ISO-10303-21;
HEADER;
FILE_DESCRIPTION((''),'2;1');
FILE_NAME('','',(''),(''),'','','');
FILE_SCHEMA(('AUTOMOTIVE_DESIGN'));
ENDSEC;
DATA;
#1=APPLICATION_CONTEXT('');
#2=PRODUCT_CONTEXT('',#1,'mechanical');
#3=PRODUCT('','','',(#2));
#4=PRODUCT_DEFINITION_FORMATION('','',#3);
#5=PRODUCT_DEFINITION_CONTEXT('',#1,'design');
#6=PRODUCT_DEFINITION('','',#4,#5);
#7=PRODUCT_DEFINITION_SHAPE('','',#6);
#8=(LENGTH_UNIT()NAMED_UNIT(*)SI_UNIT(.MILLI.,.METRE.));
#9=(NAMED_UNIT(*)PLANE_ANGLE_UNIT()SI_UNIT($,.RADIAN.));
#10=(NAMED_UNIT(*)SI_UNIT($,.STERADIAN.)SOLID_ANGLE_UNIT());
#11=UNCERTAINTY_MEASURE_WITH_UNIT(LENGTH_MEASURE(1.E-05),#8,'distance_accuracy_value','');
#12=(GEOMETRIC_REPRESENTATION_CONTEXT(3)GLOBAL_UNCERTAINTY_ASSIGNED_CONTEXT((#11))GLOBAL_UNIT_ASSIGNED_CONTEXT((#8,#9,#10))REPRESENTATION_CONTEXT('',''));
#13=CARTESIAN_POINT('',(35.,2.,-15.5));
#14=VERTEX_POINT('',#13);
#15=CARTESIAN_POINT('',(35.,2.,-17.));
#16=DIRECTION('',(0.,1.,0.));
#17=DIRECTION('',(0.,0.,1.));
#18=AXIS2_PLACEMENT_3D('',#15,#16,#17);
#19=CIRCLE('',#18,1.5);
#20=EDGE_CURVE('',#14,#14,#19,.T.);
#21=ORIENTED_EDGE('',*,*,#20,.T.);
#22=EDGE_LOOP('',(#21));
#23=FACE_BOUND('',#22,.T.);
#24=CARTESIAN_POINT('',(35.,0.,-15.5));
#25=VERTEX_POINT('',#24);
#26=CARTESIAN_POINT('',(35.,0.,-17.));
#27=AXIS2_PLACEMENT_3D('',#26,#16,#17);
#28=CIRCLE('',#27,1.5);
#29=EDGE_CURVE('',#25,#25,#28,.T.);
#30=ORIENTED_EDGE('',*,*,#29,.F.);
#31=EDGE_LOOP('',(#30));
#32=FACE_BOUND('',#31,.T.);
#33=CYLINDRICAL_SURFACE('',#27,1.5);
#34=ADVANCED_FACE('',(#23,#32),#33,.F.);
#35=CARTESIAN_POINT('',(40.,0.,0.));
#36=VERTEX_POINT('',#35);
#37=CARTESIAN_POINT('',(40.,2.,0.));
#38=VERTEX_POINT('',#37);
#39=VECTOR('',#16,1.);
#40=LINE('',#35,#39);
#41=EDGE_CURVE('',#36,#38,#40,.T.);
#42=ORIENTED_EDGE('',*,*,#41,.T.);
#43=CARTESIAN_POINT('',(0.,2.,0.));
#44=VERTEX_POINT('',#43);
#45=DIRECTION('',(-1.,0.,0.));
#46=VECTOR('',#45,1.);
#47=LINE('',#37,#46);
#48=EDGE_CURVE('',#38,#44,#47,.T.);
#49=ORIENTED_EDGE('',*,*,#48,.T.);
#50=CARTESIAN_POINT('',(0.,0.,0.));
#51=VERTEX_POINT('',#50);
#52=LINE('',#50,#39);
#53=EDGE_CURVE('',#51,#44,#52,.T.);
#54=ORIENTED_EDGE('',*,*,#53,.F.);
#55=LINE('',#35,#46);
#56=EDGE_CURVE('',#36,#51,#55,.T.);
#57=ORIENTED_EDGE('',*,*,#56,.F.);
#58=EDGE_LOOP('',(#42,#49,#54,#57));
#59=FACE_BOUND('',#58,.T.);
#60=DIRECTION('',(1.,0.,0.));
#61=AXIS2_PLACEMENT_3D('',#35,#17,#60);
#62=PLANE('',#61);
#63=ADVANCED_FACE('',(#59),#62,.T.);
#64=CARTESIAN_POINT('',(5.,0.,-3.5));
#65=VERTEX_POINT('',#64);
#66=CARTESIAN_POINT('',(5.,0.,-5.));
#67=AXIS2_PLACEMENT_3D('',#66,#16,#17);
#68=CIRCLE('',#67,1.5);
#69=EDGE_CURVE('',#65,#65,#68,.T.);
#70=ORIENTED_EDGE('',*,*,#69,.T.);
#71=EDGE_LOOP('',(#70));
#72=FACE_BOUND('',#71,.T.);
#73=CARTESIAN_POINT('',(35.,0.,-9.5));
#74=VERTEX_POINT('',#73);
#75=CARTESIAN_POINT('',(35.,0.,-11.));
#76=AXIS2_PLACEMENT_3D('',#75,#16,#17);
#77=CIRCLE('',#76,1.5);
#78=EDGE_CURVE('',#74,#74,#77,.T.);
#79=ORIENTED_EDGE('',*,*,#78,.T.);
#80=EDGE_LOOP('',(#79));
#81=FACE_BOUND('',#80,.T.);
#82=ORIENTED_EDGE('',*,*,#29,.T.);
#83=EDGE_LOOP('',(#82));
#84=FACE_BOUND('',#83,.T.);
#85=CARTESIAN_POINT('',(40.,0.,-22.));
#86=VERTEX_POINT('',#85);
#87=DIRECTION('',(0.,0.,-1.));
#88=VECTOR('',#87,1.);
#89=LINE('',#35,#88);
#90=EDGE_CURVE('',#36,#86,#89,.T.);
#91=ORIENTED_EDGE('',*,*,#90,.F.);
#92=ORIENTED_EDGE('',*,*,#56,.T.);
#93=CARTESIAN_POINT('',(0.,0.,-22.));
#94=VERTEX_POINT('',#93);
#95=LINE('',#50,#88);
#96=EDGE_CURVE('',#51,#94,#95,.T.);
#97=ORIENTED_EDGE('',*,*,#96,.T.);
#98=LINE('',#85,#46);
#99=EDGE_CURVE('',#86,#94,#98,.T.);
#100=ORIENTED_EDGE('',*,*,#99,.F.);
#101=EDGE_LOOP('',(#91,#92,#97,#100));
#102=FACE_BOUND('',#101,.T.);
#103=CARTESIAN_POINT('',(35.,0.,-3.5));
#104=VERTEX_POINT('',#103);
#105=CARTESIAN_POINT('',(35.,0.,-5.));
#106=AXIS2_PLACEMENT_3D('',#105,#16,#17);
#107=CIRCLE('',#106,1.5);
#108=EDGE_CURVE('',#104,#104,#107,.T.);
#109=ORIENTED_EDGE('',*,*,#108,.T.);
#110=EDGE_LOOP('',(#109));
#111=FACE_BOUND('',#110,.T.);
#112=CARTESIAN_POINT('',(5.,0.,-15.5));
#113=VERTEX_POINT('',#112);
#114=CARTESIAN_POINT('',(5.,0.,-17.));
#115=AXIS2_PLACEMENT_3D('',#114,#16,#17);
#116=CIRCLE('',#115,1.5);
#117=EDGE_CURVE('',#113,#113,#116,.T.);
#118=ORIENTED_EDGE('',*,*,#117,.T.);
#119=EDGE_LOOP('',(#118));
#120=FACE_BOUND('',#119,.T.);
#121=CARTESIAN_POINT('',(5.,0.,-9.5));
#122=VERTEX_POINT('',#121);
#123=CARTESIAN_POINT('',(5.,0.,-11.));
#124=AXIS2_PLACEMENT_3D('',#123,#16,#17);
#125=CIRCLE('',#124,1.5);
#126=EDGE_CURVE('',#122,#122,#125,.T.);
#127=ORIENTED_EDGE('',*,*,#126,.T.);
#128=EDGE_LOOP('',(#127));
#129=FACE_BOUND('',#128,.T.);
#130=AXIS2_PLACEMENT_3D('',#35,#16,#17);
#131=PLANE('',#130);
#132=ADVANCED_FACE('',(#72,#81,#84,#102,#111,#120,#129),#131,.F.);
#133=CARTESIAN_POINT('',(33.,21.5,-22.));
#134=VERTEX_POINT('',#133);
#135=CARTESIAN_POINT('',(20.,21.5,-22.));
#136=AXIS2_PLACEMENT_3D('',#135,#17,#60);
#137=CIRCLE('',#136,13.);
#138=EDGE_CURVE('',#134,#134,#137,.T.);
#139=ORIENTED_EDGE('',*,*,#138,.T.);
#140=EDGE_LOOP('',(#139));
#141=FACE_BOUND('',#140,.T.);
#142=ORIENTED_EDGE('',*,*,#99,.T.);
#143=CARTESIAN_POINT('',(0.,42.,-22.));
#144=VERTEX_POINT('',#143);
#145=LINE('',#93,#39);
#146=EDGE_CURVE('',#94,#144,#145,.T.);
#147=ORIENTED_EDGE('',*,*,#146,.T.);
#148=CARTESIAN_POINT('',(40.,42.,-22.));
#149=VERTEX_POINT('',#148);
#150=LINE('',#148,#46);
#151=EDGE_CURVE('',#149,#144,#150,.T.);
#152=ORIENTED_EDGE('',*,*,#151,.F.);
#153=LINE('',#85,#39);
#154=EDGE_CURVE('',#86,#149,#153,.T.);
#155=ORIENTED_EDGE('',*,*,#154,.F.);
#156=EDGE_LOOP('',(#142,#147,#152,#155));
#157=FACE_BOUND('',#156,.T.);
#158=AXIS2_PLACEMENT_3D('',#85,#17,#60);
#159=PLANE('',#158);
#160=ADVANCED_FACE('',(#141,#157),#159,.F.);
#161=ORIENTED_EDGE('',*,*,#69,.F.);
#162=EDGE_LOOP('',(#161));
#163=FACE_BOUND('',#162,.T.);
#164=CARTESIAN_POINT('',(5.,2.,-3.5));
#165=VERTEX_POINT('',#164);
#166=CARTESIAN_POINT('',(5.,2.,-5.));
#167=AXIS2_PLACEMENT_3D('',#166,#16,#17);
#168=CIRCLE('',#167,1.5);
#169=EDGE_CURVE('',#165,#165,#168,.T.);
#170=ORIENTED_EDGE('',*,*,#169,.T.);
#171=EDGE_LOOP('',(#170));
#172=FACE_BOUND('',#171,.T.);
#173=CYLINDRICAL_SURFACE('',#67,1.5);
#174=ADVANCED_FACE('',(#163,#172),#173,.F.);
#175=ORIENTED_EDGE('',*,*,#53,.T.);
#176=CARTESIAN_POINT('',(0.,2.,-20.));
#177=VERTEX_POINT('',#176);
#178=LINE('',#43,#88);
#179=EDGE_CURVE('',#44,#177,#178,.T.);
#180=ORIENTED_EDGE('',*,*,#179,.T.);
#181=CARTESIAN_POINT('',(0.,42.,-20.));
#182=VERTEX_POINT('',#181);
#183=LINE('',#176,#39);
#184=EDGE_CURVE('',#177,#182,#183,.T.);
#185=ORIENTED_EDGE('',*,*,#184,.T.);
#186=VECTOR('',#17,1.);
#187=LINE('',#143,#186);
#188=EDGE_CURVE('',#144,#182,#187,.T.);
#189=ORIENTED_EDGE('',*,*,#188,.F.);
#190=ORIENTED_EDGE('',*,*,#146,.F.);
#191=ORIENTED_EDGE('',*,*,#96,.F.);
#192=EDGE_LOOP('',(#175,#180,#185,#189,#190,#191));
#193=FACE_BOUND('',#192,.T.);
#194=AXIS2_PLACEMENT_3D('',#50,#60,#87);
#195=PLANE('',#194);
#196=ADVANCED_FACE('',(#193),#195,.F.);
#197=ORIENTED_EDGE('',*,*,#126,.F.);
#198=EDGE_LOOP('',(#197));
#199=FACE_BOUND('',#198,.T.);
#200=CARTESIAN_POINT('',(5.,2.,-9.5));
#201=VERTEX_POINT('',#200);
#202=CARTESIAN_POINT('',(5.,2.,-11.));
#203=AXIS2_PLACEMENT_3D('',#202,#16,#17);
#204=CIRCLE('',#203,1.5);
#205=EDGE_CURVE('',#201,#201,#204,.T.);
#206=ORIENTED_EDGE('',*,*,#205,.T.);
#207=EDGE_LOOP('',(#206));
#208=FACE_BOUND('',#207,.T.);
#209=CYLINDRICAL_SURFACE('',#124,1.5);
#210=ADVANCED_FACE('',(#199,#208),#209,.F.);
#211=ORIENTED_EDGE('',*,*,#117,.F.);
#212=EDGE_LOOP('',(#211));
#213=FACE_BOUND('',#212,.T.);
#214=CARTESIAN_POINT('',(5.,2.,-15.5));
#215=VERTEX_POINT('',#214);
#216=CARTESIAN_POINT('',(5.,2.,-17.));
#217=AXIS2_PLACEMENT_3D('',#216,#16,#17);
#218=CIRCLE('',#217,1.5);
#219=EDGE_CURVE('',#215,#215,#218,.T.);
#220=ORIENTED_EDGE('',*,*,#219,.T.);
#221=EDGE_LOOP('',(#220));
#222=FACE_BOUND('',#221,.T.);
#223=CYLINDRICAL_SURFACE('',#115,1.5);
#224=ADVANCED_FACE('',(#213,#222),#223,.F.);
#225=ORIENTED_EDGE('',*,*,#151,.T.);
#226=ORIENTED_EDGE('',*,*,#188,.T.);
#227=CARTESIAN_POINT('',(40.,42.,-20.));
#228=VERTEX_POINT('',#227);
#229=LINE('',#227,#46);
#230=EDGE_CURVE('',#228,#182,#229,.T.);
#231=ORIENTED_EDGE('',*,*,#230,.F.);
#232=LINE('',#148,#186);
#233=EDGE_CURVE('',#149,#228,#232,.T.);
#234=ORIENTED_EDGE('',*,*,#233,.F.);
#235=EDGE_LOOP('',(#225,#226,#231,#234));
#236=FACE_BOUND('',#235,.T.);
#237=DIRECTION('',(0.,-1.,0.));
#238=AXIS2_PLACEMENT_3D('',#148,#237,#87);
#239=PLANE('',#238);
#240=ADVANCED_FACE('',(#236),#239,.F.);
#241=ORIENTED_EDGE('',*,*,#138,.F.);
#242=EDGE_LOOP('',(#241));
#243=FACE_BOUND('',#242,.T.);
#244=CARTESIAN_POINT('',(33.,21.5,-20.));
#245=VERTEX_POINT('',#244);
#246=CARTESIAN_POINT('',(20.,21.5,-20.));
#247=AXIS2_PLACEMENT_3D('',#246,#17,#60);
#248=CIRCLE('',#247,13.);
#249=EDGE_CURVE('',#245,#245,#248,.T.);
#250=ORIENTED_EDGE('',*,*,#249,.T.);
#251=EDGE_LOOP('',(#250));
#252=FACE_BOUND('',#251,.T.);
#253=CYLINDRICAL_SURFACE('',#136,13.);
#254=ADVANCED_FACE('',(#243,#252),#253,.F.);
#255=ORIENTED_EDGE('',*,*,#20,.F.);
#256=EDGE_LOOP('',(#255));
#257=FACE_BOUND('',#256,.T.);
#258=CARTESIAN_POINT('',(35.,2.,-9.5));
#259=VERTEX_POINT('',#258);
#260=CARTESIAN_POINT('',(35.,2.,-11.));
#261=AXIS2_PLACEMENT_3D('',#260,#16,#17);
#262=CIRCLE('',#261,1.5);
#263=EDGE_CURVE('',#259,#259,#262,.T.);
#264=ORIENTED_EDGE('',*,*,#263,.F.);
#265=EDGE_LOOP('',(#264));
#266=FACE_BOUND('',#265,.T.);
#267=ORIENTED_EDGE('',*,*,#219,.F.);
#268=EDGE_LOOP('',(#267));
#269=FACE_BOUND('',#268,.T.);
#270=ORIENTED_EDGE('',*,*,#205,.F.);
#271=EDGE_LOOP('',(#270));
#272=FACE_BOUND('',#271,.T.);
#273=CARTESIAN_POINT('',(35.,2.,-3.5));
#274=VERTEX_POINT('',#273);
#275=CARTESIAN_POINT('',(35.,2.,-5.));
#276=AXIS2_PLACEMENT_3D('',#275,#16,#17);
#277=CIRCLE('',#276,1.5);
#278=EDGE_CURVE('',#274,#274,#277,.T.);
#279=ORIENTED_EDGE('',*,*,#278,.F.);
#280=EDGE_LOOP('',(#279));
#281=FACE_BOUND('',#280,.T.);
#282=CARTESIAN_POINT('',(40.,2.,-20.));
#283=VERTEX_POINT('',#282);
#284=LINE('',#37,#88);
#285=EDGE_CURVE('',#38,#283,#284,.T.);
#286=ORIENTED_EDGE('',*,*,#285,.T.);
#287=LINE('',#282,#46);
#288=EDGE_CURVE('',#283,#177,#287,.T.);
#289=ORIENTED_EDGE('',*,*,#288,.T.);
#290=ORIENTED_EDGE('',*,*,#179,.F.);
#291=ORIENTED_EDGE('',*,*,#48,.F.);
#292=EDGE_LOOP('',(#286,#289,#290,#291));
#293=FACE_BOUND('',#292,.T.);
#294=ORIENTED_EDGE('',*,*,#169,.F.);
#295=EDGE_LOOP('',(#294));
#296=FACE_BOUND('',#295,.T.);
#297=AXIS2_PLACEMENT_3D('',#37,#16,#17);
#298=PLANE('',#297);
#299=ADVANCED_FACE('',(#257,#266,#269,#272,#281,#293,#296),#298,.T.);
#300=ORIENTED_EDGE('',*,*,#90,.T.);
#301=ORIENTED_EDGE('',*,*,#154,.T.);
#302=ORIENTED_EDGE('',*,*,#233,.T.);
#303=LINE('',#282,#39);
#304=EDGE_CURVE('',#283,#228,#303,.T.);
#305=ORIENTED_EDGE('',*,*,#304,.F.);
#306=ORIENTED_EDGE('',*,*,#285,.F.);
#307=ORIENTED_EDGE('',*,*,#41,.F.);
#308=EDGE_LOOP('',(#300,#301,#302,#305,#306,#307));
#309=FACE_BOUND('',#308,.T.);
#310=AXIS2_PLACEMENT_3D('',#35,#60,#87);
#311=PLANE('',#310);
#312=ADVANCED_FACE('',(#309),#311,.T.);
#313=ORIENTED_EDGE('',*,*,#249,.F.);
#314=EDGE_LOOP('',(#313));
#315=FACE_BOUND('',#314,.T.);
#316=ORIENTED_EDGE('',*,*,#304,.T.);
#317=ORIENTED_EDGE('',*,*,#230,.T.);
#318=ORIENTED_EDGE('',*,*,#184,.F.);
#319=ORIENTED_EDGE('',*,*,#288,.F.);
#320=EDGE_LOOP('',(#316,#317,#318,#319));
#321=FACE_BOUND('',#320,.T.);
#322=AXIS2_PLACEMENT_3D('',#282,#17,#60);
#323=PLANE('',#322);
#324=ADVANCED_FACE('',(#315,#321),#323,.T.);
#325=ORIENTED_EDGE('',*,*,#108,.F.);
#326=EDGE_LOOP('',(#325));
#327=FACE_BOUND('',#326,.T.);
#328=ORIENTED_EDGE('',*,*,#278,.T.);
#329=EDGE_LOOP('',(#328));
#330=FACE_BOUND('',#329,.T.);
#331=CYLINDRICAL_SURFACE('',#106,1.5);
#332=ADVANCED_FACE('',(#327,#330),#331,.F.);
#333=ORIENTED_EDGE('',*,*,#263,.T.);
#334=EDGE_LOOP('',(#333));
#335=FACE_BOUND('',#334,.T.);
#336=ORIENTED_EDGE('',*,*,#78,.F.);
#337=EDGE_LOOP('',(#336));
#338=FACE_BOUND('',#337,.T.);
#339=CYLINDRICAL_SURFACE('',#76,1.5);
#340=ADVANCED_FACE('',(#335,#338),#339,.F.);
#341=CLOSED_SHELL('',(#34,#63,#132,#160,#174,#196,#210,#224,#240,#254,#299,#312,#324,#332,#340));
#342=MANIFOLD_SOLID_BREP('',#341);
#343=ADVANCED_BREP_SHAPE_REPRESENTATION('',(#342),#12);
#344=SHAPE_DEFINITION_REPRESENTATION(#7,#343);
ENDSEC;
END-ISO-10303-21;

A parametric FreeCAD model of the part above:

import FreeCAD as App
import Part
import Sketcher

doc = App.newDocument("Part")
body = doc.addObject("PartDesign::Body", "Body")

# Sketch on YZ plane
sketch1 = body.newObject("Sketcher::SketchObject", "Sketch")
sketch1.AttachmentSupport = (doc.getObject("YZ_Plane"), [""])
sketch1.MapMode = "FlatFace"
sketch1.addGeometry(Part.LineSegment(App.Vector(0, 0, 0), App.Vector(0, -22, 0)), False)
sketch1.addGeometry(Part.LineSegment(App.Vector(0, -22, 0), App.Vector(42, -22, 0)), False)
sketch1.addGeometry(Part.LineSegment(App.Vector(42, -22, 0), App.Vector(42, -20, 0)), False)
sketch1.addGeometry(Part.LineSegment(App.Vector(42, -20, 0), App.Vector(2, -20, 0)), False)
sketch1.addGeometry(Part.LineSegment(App.Vector(2, -20, 0), App.Vector(2, 0, 0)), False)
sketch1.addGeometry(Part.LineSegment(App.Vector(2, 0, 0), App.Vector(0, 0, 0)), False)
sketch1.addConstraint(Sketcher.Constraint("Coincident", 0, 2, 1, 1))
sketch1.addConstraint(Sketcher.Constraint("Coincident", 1, 2, 2, 1))
sketch1.addConstraint(Sketcher.Constraint("Coincident", 2, 2, 3, 1))
sketch1.addConstraint(Sketcher.Constraint("Coincident", 3, 2, 4, 1))
sketch1.addConstraint(Sketcher.Constraint("Coincident", 4, 2, 5, 1))
sketch1.addConstraint(Sketcher.Constraint("Coincident", 5, 2, 0, 1))
sketch1.addConstraint(Sketcher.Constraint("Vertical", 0))
sketch1.addConstraint(Sketcher.Constraint("Horizontal", 1))
sketch1.addConstraint(Sketcher.Constraint("Vertical", 2))
sketch1.addConstraint(Sketcher.Constraint("Horizontal", 3))
sketch1.addConstraint(Sketcher.Constraint("Vertical", 4))
sketch1.addConstraint(Sketcher.Constraint("Horizontal", 5))
sketch1.addConstraint(Sketcher.Constraint("Coincident", 5, 2, -1, 1))
sketch1.addConstraint(Sketcher.Constraint("Equal", 5, 2))
sketch1.addConstraint(Sketcher.Constraint("DistanceX", 1, 1, 1, 2, 42.0))
sketch1.addConstraint(Sketcher.Constraint("DistanceX", 3, 2, 3, 1, 40.0))
sketch1.addConstraint(Sketcher.Constraint("DistanceY", 0, 2, 0, 1, 22.0))
pad1 = body.newObject("PartDesign::Pad", "Pad")
pad1.Profile = sketch1
pad1.Length = 40

# Sketch on XY plane
sketch2 = body.newObject("Sketcher::SketchObject", "Sketch001")
sketch2.AttachmentSupport = (doc.getObject("XY_Plane"), [""])
sketch2.MapMode = "FlatFace"
sketch2.AttachmentOffset = App.Placement(App.Vector(0, 0, -20), App.Rotation())
sketch2.addGeometry(Part.Circle(App.Vector(20, 22, 0), App.Vector(0, 0, 1), 13), False)
sketch2.addConstraint(Sketcher.Constraint("Diameter", 0, 26.0))
sketch2.addConstraint(Sketcher.Constraint("DistanceX", -1, 1, 0, 3, 20.0))
sketch2.addConstraint(Sketcher.Constraint("DistanceY", -1, 1, 0, 3, 21.5))
pocket1 = body.newObject("PartDesign::Pocket", "Pocket")
pocket1.Profile = sketch2
pocket1.Type = "ThroughAll"

# Sketch on XZ plane
sketch3 = body.newObject("Sketcher::SketchObject", "Sketch002")
sketch3.AttachmentSupport = (doc.getObject("XZ_Plane"), [""])
sketch3.MapMode = "FlatFace"
sketch3.AttachmentOffset = App.Placement(App.Vector(0, 0, -2), App.Rotation())
sketch3.addGeometry(Part.Circle(App.Vector(35, -5, 0), App.Vector(0, 0, 1), 1.5), False)
sketch3.addGeometry(Part.Circle(App.Vector(5, -5, 0), App.Vector(0, 0, 1), 1.5), False)
sketch3.addGeometry(Part.Circle(App.Vector(5, -11, 0), App.Vector(0, 0, 1), 1.5), False)
sketch3.addGeometry(Part.Circle(App.Vector(5, -17, 0), App.Vector(0, 0, 1), 1.5), False)
sketch3.addGeometry(Part.Circle(App.Vector(35, -11, 0), App.Vector(0, 0, 1), 1.5), False)
sketch3.addGeometry(Part.Circle(App.Vector(35, -17, 0), App.Vector(0, 0, 1), 1.5), False)
sketch3.addConstraint(Sketcher.Constraint("Equal", 0, 1))
sketch3.addConstraint(Sketcher.Constraint("Equal", 1, 2))
sketch3.addConstraint(Sketcher.Constraint("Equal", 2, 3))
sketch3.addConstraint(Sketcher.Constraint("Equal", 3, 4))
sketch3.addConstraint(Sketcher.Constraint("Equal", 4, 5))
sketch3.addConstraint(Sketcher.Constraint("Horizontal", 0, 3, 1, 3))
sketch3.addConstraint(Sketcher.Constraint("Horizontal", 2, 3, 4, 3))
sketch3.addConstraint(Sketcher.Constraint("Horizontal", 3, 3, 5, 3))
sketch3.addConstraint(Sketcher.Constraint("Vertical", 1, 3, 2, 3))
sketch3.addConstraint(Sketcher.Constraint("Vertical", 2, 3, 3, 3))
sketch3.addConstraint(Sketcher.Constraint("Vertical", 0, 3, 4, 3))
sketch3.addConstraint(Sketcher.Constraint("Vertical", 4, 3, 5, 3))
sketch3.addConstraint(Sketcher.Constraint("Diameter", 0, 3.0))
sketch3.addConstraint(Sketcher.Constraint("DistanceX", -1, 1, 0, 3, 35.0))
sketch3.addConstraint(Sketcher.Constraint("DistanceY", 0, 3, -1, 1, 5.0))
sketch3.addConstraint(Sketcher.Constraint("DistanceX", -1, 1, 1, 3, 5.0))
sketch3.addConstraint(Sketcher.Constraint("DistanceY", 2, 3, -1, 1, 11.0))
sketch3.addConstraint(Sketcher.Constraint("DistanceY", 3, 3, -1, 1, 17.0))
pocket2 = body.newObject("PartDesign::Pocket", "Pocket001")
pocket2.Profile = sketch3
pocket2.Type = "ThroughAll"
pocket2.Reversed = True

doc.recompute()
